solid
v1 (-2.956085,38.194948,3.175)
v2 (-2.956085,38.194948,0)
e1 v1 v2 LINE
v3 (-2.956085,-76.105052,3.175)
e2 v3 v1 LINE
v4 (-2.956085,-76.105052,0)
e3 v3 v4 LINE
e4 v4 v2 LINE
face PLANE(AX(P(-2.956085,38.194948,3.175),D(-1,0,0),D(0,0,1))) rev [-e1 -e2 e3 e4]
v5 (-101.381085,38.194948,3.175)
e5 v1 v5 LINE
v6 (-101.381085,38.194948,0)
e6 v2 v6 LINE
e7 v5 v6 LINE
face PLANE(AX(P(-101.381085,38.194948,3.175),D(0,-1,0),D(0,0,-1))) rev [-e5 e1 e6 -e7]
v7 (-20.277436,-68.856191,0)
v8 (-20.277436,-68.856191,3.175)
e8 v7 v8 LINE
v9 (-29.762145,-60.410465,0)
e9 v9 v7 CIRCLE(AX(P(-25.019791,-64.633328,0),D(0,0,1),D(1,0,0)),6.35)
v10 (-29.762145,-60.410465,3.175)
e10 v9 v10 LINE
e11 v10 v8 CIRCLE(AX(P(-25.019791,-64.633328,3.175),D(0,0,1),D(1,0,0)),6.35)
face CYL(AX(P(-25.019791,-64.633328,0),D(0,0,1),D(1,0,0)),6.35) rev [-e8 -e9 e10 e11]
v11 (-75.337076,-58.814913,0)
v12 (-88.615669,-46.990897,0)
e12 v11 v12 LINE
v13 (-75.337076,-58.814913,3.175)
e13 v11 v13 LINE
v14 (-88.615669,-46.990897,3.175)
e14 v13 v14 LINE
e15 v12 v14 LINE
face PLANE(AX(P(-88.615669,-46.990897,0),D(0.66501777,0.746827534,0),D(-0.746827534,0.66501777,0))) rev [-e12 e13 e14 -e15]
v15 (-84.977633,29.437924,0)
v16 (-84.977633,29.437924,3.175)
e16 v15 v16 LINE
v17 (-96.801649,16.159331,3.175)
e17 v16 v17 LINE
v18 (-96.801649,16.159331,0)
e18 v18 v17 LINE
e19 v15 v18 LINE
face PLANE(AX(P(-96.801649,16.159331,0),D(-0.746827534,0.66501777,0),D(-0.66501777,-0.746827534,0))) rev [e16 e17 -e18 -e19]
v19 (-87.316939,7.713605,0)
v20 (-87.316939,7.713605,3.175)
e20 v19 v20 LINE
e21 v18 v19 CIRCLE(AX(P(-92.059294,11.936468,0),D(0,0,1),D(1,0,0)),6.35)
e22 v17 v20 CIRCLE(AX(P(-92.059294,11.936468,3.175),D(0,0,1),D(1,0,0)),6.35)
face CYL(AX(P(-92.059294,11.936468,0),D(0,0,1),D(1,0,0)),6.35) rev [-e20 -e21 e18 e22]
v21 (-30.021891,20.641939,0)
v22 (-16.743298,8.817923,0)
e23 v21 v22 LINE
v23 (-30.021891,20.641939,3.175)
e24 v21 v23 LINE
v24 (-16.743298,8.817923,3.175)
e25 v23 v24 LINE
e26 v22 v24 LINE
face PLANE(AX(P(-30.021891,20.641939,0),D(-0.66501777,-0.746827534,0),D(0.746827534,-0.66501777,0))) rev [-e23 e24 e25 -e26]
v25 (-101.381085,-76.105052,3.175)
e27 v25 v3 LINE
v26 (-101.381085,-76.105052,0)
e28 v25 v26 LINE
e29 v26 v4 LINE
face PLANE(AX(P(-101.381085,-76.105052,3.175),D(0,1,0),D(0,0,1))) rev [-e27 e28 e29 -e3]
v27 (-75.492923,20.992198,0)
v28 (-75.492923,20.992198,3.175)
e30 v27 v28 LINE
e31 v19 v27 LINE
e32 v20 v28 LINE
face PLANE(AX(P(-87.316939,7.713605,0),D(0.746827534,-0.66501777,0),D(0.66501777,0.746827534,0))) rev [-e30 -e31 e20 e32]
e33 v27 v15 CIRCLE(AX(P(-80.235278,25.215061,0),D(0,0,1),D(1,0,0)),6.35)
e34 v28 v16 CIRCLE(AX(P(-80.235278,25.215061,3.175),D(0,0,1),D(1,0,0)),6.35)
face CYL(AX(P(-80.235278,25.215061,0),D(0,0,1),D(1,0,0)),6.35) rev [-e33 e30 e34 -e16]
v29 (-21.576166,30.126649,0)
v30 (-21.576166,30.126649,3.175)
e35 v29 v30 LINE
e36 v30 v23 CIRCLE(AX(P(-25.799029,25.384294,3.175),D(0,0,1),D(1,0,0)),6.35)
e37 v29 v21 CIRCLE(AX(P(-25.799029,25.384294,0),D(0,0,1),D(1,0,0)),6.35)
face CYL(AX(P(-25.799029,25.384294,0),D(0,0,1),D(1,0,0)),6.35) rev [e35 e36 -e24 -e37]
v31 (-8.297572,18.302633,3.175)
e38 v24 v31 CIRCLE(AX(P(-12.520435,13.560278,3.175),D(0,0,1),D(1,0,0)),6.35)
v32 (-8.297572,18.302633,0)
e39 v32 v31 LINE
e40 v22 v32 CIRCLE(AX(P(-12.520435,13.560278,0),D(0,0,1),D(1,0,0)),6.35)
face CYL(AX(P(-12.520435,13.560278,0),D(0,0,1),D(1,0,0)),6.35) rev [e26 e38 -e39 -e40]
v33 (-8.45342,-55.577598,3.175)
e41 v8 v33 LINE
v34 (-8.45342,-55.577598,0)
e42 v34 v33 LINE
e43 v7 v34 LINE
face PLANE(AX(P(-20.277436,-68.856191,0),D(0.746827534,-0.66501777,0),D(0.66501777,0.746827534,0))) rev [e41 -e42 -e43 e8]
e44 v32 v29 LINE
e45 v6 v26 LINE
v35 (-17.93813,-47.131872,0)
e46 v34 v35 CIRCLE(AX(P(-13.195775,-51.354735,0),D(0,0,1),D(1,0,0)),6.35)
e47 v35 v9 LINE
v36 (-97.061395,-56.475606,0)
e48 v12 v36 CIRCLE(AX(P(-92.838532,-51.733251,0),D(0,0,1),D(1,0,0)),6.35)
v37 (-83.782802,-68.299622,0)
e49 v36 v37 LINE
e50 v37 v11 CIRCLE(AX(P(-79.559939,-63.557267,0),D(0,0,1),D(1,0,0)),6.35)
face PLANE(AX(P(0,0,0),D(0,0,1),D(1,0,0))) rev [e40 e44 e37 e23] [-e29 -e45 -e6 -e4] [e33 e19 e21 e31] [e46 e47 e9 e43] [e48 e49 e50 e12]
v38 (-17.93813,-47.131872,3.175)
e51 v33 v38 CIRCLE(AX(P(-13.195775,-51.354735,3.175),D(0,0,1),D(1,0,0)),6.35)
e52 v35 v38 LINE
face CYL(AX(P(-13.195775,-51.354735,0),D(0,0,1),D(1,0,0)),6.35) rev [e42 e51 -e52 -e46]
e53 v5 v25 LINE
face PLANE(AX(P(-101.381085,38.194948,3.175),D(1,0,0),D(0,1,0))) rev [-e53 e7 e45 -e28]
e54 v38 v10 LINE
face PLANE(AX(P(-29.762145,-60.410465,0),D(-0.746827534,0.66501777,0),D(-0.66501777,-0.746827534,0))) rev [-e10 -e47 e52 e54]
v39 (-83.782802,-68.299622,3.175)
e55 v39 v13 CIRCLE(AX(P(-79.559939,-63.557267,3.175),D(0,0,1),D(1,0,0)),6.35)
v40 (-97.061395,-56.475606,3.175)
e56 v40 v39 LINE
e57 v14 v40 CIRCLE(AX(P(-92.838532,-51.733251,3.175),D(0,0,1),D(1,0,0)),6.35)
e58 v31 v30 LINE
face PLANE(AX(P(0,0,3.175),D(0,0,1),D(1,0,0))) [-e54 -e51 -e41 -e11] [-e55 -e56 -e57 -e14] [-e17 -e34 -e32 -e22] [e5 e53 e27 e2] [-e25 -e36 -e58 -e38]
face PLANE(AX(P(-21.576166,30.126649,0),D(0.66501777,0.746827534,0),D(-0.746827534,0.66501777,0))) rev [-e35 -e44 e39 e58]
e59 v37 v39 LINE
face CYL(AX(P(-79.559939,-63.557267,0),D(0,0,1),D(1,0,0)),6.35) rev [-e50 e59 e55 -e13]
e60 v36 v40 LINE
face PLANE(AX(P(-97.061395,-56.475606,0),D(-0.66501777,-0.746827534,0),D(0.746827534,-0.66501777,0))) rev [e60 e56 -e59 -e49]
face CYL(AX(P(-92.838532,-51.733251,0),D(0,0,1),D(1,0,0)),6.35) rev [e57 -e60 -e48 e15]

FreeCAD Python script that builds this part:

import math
import FreeCAD as App
import Part
import Sketcher
Q = App.Units.Quantity


def add_polygon(sketch, points):
    """Adds a closed chain of lines whose ends are joined by coincident constraints."""
    first, n = sketch.GeometryCount, len(points)
    for a, b in zip(points, points[1:] + points[:1]):
        sketch.addGeometry(Part.LineSegment(App.Vector(*a, 0), App.Vector(*b, 0)), False)
    for i in range(n):
        sketch.addConstraint(Sketcher.Constraint("Coincident", first + i, 2, first + (i + 1) % n, 1))

doc = App.newDocument("Part")
params = doc.addObject("Spreadsheet::Sheet", "Params")
for row, (alias, value) in enumerate([
    ("sketch1_height", "4.5 in"),
    ("sketch1_width", "3.875 in"),
    ("pad1_length", "0.125 in"),
    ("sketch2_radius", "0.25 in"),
    ("sketch2_length", "0.7 in"),
    ("pocket1_length", "0.125 in"),
], start=1):
    params.set(f"A{row}", alias)
    params.set(f"B{row}", "=" + value)
    params.setAlias(f"B{row}", alias)

body = doc.addObject("PartDesign::Body", "Body")

# Sketch on XY plane
sketch1 = body.newObject("Sketcher::SketchObject", "Sketch")
sketch1.AttachmentSupport = (doc.getObject("XY_Plane"), [""])
sketch1.MapMode = "FlatFace"
add_polygon(sketch1, [(-101, 38), (-101, -76), (-3, -76), (-3, 38)])  # lines 0-3
sketch1.addConstraint([
    Sketcher.Constraint("Vertical", 0),
    Sketcher.Constraint("Horizontal", 1),
    Sketcher.Constraint("Vertical", 2),
    Sketcher.Constraint("Horizontal", 3),
    Sketcher.Constraint("DistanceY", 0, 2, 0, 1, Q("4.5 in")),
    Sketcher.Constraint("DistanceX", 1, 1, 1, 2, Q("3.875 in")),
    Sketcher.Constraint("DistanceY", 0, 2, -1, 1, Q("76.105052 mm")),
    Sketcher.Constraint("DistanceX", 0, 2, -1, 1, Q("101.381085 mm")),
])
sketch1.setExpression("Constraints[8]", "Params.sketch1_height")
sketch1.setExpression("Constraints[9]", "Params.sketch1_width")
pad1 = body.newObject("PartDesign::Pad", "Pad")
pad1.Profile = sketch1
pad1.setExpression("Length", "Params.pad1_length")

# Sketch on XY plane
sketch2 = body.newObject("Sketcher::SketchObject", "Sketch001")
sketch2.AttachmentSupport = (doc.getObject("XY_Plane"), [""])
sketch2.MapMode = "FlatFace"
sketch2.AttachmentOffset = App.Placement(App.Vector(0, 0, 0.125 * 25.4), App.Rotation())
sketch2.addGeometry([
    Part.LineSegment(App.Vector(-85, 29, 0), App.Vector(-97, 16, 0)),  # 0
    Part.ArcOfCircle(Part.Circle(App.Vector(-92, 12, 0), App.Vector(0, 0, 1), 6), math.radians(138), math.radians(318)),  # 1
    Part.LineSegment(App.Vector(-87, 8, 0), App.Vector(-75, 21, 0)),  # 2
    Part.ArcOfCircle(Part.Circle(App.Vector(-80, 25, 0), App.Vector(0, 0, 1), 6), math.radians(-42), math.radians(138)),  # 3
    Part.LineSegment(App.Vector(-18, -47, 0), App.Vector(-30, -60, 0)),  # 4
    Part.ArcOfCircle(Part.Circle(App.Vector(-25, -65, 0), App.Vector(0, 0, 1), 6), math.radians(138), math.radians(318)),  # 5
    Part.LineSegment(App.Vector(-20, -69, 0), App.Vector(-8, -56, 0)),  # 6
    Part.ArcOfCircle(Part.Circle(App.Vector(-13, -51, 0), App.Vector(0, 0, 1), 6), math.radians(-42), math.radians(138)),  # 7
    Part.LineSegment(App.Vector(-75, -59, 0), App.Vector(-89, -47, 0)),  # 8
    Part.ArcOfCircle(Part.Circle(App.Vector(-93, -52, 0), App.Vector(0, 0, 1), 6), math.radians(48), math.radians(228)),  # 9
    Part.LineSegment(App.Vector(-97, -56, 0), App.Vector(-84, -68, 0)),  # 10
    Part.ArcOfCircle(Part.Circle(App.Vector(-80, -64, 0), App.Vector(0, 0, 1), 6), math.radians(-132), math.radians(48)),  # 11
    Part.LineSegment(App.Vector(-8, 18, 0), App.Vector(-22, 30, 0)),  # 12
    Part.ArcOfCircle(Part.Circle(App.Vector(-26, 25, 0), App.Vector(0, 0, 1), 6), math.radians(48), math.radians(228)),  # 13
    Part.LineSegment(App.Vector(-30, 21, 0), App.Vector(-17, 9, 0)),  # 14
    Part.ArcOfCircle(Part.Circle(App.Vector(-13, 14, 0), App.Vector(0, 0, 1), 6), math.radians(-132), math.radians(48)),  # 15
], False)
sketch2.addConstraint([
    Sketcher.Constraint("Tangent", 0, 2, 1, 1),
    Sketcher.Constraint("Tangent", 1, 2, 2, 1),
    Sketcher.Constraint("Tangent", 2, 2, 3, 1),
    Sketcher.Constraint("Tangent", 3, 2, 0, 1),
    Sketcher.Constraint("Tangent", 4, 2, 5, 1),
    Sketcher.Constraint("Tangent", 5, 2, 6, 1),
    Sketcher.Constraint("Tangent", 6, 2, 7, 1),
    Sketcher.Constraint("Tangent", 7, 2, 4, 1),
    Sketcher.Constraint("Tangent", 8, 2, 9, 1),
    Sketcher.Constraint("Tangent", 9, 2, 10, 1),
    Sketcher.Constraint("Tangent", 10, 2, 11, 1),
    Sketcher.Constraint("Tangent", 11, 2, 8, 1),
    Sketcher.Constraint("Tangent", 12, 2, 13, 1),
    Sketcher.Constraint("Tangent", 13, 2, 14, 1),
    Sketcher.Constraint("Tangent", 14, 2, 15, 1),
    Sketcher.Constraint("Tangent", 15, 2, 12, 1),
    Sketcher.Constraint("Equal", 1, 3),
    Sketcher.Constraint("Equal", 3, 5),
    Sketcher.Constraint("Equal", 5, 7),
    Sketcher.Constraint("Equal", 7, 9),
    Sketcher.Constraint("Equal", 9, 11),
    Sketcher.Constraint("Equal", 11, 13),
    Sketcher.Constraint("Equal", 13, 15),
    Sketcher.Constraint("Parallel", 2, 4),
    Sketcher.Constraint("Perpendicular", 6, 8),
    Sketcher.Constraint("Parallel", 10, 12),
    Sketcher.Constraint("Equal", 2, 4),
    Sketcher.Constraint("Equal", 6, 8),
    Sketcher.Constraint("Equal", 10, 12),
    Sketcher.Constraint("Radius", 1, Q("0.25 in")),
    Sketcher.Constraint("Distance", 0, Q("0.7 in")),
    Sketcher.Constraint("DistanceY", -1, 1, 2, 2, Q("20.992198 mm")),
    Sketcher.Constraint("DistanceX", 10, 2, -1, 1, Q("83.782802 mm")),
    Sketcher.Constraint("DistanceY", 11, 3, 0, 2, Q("79.716598 mm")),
    Sketcher.Constraint("DistanceY", 11, 3, 4, 2, Q("3.146802 mm")),
    Sketcher.Constraint("DistanceY", 8, 2, 1, 2, Q("54.704502 mm")),
    Sketcher.Constraint("DistanceX", 3, 3, -1, 1, Q("80.235278 mm")),
    Sketcher.Constraint("DistanceX", 5, 3, -1, 1, Q("25.019791 mm")),
    Sketcher.Constraint("DistanceX", 13, 3, -1, 1, Q("25.799029 mm")),
    Sketcher.Constraint("DistanceY", -1, 1, 15, 3, Q("13.560278 mm")),
])
sketch2.setExpression("Constraints[29]", "Params.sketch2_radius")
sketch2.setExpression("Constraints[30]", "Params.sketch2_length")
pocket1 = body.newObject("PartDesign::Pocket", "Pocket")
pocket1.Profile = sketch2
pocket1.setExpression("Length", "Params.pocket1_length")

doc.recompute()
